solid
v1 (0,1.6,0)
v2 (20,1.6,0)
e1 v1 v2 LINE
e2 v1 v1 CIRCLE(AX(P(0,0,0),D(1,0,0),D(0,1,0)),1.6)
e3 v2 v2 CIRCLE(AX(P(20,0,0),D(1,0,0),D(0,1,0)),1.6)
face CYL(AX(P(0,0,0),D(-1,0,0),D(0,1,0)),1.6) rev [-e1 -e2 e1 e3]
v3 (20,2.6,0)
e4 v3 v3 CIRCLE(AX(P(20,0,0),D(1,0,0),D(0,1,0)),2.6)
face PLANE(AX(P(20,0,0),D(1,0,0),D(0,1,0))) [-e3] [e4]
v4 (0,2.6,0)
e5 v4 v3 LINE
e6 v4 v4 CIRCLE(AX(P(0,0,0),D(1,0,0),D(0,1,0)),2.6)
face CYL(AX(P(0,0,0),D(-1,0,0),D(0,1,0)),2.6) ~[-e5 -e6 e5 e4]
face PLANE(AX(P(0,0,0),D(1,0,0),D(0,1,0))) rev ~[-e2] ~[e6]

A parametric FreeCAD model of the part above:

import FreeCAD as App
import Part
import Sketcher
from FreeCAD import Vector
Q = App.Units.Quantity

doc = App.newDocument("Part")
body = doc.addObject("PartDesign::Body", "Body")

# Sketch on YZ plane
sketch1 = body.newObject("Sketcher::SketchObject", "Sketch")
sketch1.AttachmentSupport = (doc.getObject("YZ_Plane"), [""])
sketch1.MapMode = "FlatFace"
sketch1.addGeometry([
    Part.Circle(Vector(0, 0, 0), Vector(0, 0, 1), 2.6),
    Part.Circle(Vector(0, 0, 0), Vector(0, 0, 1), 1.6),
], False)
sketch1.addConstraint([
    Sketcher.Constraint("Coincident", 0, 3, -1, 1),
    Sketcher.Constraint("Coincident", 1, 3, -1, 1),
    Sketcher.Constraint("Diameter", 0, Q("5.2 mm")),
    Sketcher.Constraint("Diameter", 1, Q("3.2 mm")),
])
pad1 = body.newObject("PartDesign::Pad", "Pad")
pad1.Profile = sketch1
pad1.Length = 20

doc.recompute()
